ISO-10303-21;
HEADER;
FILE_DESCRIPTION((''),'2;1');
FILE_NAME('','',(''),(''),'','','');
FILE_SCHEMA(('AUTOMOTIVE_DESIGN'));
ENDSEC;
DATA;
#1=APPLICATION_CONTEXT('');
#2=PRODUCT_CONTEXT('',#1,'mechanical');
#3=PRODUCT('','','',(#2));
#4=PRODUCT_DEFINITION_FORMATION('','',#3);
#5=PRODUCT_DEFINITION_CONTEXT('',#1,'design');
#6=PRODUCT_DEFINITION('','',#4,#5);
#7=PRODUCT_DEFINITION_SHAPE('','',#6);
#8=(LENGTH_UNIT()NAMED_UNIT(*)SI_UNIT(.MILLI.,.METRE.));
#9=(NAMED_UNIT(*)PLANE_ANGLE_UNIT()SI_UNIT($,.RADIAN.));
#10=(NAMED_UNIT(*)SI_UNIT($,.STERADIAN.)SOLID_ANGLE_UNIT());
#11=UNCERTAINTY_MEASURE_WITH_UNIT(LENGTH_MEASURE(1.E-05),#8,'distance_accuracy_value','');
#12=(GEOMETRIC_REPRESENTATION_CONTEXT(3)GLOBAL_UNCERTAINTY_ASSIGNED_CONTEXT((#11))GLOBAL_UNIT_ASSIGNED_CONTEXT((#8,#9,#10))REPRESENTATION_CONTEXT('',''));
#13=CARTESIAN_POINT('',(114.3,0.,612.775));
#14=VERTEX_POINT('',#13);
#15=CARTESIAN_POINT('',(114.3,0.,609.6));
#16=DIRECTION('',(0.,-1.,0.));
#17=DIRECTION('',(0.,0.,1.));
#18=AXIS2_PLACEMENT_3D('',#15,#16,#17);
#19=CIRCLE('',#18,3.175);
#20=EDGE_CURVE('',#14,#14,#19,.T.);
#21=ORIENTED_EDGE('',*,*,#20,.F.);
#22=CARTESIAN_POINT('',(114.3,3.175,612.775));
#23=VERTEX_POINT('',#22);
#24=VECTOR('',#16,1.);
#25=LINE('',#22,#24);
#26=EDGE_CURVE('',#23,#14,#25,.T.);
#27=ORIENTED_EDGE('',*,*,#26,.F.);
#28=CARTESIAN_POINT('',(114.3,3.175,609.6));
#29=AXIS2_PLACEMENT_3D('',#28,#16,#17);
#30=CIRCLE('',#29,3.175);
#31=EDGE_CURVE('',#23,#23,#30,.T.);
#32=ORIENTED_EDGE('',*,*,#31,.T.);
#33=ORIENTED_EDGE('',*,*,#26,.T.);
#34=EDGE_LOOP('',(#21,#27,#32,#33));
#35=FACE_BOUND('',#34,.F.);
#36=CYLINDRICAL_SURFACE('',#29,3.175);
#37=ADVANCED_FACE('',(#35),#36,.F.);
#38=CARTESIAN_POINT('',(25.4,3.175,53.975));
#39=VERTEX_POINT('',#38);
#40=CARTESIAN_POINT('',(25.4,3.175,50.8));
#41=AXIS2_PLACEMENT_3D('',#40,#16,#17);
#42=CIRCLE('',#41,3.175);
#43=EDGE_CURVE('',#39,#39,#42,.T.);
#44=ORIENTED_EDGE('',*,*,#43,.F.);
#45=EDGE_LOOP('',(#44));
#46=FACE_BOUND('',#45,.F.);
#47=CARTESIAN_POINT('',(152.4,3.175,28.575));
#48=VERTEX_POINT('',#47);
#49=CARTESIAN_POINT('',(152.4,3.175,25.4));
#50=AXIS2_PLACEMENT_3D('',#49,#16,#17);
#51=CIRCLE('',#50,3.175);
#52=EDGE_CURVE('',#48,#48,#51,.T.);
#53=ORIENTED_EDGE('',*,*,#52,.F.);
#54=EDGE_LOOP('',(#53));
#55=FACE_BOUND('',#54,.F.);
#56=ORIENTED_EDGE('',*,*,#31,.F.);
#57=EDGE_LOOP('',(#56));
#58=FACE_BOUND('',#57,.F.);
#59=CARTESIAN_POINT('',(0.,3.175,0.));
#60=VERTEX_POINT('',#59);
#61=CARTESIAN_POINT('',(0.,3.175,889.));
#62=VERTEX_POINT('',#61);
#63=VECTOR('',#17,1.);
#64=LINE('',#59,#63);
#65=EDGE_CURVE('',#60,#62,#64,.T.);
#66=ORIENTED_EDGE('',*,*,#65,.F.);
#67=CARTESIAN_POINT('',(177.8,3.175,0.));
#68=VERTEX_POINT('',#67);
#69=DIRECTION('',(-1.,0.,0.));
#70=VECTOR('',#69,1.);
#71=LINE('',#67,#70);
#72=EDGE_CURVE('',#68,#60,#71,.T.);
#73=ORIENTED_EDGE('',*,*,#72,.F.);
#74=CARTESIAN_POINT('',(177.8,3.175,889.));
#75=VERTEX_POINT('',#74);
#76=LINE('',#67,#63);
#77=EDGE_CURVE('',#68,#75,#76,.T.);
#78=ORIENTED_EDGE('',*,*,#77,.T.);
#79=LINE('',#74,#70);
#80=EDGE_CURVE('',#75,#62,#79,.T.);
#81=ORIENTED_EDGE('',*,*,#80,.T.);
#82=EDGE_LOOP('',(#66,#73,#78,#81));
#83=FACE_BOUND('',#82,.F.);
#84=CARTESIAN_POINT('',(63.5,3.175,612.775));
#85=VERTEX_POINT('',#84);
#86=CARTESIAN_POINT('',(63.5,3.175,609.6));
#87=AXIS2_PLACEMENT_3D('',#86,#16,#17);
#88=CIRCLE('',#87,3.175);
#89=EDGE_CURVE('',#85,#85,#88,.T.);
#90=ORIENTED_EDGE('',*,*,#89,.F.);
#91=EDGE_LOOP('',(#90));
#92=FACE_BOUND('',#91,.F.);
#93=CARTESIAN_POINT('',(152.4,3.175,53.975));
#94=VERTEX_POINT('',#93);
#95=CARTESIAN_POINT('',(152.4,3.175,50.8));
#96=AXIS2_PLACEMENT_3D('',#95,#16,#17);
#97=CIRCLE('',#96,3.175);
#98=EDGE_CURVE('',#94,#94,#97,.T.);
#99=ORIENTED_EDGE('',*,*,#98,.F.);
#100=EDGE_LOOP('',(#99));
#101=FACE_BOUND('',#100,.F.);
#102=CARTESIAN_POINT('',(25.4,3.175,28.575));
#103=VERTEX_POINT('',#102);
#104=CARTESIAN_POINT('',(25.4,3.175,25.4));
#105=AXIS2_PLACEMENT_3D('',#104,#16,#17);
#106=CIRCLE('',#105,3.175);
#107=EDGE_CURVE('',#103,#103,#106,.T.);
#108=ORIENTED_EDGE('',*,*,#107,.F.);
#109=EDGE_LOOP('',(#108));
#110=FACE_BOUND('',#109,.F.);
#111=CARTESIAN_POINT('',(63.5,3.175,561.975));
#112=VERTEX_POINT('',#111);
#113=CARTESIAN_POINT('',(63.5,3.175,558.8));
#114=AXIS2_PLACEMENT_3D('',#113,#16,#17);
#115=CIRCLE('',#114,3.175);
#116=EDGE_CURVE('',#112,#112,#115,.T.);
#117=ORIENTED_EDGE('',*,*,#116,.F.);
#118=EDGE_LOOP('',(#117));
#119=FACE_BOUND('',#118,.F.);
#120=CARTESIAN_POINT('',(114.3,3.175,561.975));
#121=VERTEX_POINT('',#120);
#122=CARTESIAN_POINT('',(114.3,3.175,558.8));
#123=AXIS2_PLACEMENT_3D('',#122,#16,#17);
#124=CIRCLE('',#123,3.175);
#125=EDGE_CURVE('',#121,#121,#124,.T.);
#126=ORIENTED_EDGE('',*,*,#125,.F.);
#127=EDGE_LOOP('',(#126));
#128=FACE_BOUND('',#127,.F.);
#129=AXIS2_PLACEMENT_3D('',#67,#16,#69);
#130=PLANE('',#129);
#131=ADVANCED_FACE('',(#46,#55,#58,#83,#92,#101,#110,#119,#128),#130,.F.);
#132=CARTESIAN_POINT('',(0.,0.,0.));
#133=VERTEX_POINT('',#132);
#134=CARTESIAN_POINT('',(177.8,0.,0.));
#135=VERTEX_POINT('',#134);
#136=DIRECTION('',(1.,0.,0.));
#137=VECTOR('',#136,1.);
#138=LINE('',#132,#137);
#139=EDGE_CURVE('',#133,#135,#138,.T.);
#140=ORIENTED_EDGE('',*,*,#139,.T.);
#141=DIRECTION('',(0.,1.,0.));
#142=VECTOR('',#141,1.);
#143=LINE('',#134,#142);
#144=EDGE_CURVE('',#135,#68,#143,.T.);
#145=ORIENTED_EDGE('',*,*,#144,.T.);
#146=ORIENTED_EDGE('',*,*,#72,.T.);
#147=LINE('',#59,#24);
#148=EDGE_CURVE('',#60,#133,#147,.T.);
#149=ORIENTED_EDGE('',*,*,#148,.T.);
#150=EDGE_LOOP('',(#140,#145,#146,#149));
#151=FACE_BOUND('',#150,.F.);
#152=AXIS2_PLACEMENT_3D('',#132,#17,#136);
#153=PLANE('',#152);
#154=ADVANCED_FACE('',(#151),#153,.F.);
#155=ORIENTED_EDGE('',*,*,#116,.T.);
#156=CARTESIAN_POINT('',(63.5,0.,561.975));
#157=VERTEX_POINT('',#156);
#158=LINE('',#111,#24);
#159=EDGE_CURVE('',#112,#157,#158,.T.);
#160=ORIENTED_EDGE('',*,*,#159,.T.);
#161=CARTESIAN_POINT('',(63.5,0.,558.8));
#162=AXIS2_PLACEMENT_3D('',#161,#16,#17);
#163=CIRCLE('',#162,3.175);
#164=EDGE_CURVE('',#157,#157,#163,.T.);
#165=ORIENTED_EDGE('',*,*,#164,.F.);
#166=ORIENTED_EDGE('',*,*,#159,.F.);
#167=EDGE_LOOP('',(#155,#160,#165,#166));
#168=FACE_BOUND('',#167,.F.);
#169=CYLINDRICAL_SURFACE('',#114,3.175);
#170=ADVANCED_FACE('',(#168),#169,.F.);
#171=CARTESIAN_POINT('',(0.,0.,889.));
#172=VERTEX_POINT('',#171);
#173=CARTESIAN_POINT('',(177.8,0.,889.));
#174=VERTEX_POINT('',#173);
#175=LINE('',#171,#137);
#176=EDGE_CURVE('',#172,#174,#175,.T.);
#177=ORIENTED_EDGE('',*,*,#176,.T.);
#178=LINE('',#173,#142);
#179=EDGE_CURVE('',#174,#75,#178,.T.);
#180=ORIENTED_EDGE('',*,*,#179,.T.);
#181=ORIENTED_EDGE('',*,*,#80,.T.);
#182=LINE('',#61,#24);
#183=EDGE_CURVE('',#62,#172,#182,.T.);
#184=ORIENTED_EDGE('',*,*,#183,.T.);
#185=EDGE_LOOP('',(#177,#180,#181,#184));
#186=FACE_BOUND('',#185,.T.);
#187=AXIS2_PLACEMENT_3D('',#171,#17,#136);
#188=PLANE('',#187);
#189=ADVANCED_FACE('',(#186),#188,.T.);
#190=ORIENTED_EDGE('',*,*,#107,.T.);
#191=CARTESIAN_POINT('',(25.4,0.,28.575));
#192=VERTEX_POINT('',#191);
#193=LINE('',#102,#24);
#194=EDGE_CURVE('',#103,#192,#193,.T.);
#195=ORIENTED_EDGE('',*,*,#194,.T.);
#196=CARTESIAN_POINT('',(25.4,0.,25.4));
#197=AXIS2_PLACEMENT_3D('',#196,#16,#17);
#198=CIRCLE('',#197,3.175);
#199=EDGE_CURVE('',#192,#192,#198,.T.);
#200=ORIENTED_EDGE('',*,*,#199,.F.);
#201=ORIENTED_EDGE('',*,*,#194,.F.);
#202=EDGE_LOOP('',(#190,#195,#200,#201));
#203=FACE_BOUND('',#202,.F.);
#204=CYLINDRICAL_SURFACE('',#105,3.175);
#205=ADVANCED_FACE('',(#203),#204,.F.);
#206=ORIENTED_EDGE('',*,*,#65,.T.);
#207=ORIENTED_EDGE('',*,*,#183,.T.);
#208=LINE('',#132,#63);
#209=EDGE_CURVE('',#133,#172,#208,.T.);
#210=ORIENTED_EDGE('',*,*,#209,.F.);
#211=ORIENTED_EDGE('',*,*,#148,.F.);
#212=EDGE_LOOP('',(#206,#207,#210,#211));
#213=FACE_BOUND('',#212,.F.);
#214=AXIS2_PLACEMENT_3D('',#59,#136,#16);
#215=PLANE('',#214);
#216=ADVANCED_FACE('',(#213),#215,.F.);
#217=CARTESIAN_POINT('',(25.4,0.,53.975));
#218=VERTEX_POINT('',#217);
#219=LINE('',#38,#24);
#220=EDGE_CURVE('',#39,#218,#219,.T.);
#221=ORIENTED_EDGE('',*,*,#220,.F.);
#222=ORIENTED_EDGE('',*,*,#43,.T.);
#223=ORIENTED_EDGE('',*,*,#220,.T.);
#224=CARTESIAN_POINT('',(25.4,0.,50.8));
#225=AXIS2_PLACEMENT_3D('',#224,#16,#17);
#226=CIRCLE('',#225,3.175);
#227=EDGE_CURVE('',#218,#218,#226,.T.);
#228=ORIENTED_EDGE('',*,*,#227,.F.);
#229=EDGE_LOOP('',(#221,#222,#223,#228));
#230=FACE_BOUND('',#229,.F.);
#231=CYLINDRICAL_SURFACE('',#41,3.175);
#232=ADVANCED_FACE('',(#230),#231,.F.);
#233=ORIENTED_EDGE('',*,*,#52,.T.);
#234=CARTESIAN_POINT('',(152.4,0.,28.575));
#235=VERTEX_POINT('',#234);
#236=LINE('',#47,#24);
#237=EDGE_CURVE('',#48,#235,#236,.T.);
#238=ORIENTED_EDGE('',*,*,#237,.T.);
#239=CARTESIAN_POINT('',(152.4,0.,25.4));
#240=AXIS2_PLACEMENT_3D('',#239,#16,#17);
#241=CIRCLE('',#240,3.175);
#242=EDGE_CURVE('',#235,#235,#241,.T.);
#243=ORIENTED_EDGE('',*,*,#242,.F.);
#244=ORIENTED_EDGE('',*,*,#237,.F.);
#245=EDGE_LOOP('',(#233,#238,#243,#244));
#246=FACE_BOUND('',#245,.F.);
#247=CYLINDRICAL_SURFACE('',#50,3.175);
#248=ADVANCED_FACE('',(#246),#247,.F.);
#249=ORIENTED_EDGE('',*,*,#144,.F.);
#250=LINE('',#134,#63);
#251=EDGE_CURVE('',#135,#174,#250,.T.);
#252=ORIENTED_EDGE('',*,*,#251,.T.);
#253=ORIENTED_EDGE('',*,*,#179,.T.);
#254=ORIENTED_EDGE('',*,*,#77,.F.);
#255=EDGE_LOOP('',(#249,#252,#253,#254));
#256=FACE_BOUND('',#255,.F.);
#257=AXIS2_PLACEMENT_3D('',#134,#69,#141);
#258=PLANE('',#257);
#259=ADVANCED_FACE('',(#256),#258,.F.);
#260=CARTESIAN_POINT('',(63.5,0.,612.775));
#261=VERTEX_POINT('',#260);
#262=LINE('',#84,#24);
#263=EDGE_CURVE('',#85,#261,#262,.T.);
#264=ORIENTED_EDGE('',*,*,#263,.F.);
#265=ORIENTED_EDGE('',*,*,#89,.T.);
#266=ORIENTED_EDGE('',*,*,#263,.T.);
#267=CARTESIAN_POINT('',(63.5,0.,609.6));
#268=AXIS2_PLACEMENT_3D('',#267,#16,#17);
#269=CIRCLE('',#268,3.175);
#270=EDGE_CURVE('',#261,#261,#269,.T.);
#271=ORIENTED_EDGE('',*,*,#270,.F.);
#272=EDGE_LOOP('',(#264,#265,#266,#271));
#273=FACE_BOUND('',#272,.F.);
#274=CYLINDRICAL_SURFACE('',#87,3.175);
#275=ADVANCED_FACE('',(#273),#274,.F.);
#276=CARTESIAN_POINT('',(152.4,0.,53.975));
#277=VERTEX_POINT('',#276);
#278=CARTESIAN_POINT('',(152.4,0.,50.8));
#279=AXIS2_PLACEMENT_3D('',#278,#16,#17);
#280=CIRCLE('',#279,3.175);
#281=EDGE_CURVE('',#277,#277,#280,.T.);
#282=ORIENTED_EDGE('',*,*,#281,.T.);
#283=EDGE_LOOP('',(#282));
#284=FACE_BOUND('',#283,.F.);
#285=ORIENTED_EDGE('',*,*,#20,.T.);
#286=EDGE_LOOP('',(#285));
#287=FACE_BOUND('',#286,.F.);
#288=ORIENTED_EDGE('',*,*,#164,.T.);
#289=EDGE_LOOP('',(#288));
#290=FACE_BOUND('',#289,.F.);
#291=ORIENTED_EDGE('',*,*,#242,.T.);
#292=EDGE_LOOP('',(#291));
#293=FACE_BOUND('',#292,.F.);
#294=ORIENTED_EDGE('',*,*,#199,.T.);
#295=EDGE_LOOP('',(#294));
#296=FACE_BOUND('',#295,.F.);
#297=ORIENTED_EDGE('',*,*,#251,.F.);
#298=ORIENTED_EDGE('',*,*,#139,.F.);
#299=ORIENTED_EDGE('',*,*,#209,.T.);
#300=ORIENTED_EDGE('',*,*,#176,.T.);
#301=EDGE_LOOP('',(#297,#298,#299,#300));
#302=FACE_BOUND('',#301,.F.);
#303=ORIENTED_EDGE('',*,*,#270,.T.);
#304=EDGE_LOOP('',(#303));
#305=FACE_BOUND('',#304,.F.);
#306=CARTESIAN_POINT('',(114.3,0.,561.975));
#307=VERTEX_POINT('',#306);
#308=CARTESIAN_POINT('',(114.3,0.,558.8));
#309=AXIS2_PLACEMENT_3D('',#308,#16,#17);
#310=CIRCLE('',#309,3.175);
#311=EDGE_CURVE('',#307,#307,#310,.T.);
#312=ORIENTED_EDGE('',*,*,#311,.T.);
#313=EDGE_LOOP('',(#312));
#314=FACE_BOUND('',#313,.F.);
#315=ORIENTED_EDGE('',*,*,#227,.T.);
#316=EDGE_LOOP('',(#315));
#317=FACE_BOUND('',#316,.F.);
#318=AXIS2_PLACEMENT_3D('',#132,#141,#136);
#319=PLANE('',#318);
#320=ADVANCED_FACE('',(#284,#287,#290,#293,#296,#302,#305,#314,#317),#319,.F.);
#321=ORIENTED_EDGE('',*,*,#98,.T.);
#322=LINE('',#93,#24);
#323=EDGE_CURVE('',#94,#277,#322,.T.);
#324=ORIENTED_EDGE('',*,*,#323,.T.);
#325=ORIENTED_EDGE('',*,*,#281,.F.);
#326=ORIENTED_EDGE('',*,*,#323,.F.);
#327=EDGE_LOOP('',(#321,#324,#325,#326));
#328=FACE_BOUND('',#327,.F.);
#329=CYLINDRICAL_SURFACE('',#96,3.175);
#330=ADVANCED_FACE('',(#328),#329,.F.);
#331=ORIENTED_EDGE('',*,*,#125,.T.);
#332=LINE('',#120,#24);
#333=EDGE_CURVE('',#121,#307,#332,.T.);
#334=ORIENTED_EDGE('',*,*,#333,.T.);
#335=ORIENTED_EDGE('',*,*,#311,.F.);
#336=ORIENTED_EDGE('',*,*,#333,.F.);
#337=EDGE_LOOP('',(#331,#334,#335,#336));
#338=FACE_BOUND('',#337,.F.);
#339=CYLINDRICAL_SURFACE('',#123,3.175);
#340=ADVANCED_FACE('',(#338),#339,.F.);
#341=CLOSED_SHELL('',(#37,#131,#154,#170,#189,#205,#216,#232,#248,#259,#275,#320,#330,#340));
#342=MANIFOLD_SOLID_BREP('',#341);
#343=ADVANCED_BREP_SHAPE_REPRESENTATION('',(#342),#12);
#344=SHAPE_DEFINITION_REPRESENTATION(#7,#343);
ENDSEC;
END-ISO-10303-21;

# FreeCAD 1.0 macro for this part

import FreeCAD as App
import Part
import Sketcher
from FreeCAD import Vector
Q = App.Units.Quantity


def add_polygon(sketch, points):
    """Adds a closed chain of lines whose ends are joined by coincident constraints."""
    first, n = sketch.GeometryCount, len(points)
    for a, b in zip(points, points[1:] + points[:1]):
        sketch.addGeometry(Part.LineSegment(App.Vector(*a, 0), App.Vector(*b, 0)), False)
    for i in range(n):
        sketch.addConstraint(Sketcher.Constraint("Coincident", first + i, 2, first + (i + 1) % n, 1))

doc = App.newDocument("Part")
body = doc.addObject("PartDesign::Body", "Body")

# Sketch on XY plane
sketch1 = body.newObject("Sketcher::SketchObject", "Sketch")
sketch1.AttachmentSupport = (doc.getObject("XY_Plane"), [""])
sketch1.MapMode = "FlatFace"
add_polygon(sketch1, [(0, 3.2), (0, 0), (177.8, 0), (177.8, 3.2)])  # lines 0-3
sketch1.addConstraint([
    Sketcher.Constraint("Vertical", 0),
    Sketcher.Constraint("Horizontal", 1),
    Sketcher.Constraint("Vertical", 2),
    Sketcher.Constraint("Horizontal", 3),
    Sketcher.Constraint("Coincident", 0, 2, -1, 1),
    Sketcher.Constraint("DistanceX", 1, 1, 1, 2, Q("7 in")),
    Sketcher.Constraint("DistanceY", 0, 2, 0, 1, Q("0.125 in")),
])
pad1 = body.newObject("PartDesign::Pad", "Pad")
pad1.Profile = sketch1
pad1.Length = Q("35 in")

# Sketch on XZ plane
sketch2 = body.newObject("Sketcher::SketchObject", "Sketch001")
sketch2.AttachmentSupport = (doc.getObject("XZ_Plane"), [""])
sketch2.MapMode = "FlatFace"
sketch2.AttachmentOffset = App.Placement(Vector(0, 0, -0.125 * 25.4), App.Rotation())
sketch2.addGeometry([
    Part.Circle(Vector(63.5, 558.8, 0), Vector(0, 0, 1), 3.2),
    Part.Circle(Vector(63.5, 609.6, 0), Vector(0, 0, 1), 3.2),
    Part.Circle(Vector(114.3, 609.6, 0), Vector(0, 0, 1), 3.2),
    Part.Circle(Vector(114.3, 558.8, 0), Vector(0, 0, 1), 3.2),
], False)
sketch2.addConstraint([
    Sketcher.Constraint("Equal", 0, 1),
    Sketcher.Constraint("Equal", 1, 2),
    Sketcher.Constraint("Equal", 2, 3),
    Sketcher.Constraint("Horizontal", 1, 3, 2, 3),
    Sketcher.Constraint("Horizontal", 0, 3, 3, 3),
    Sketcher.Constraint("Vertical", 0, 3, 1, 3),
    Sketcher.Constraint("Vertical", 2, 3, 3, 3),
    Sketcher.Constraint("Diameter", 0, Q("0.25 in")),
    Sketcher.Constraint("DistanceY", -1, 1, 0, 3, Q("22 in")),
    Sketcher.Constraint("DistanceY", -1, 1, 1, 3, Q("24 in")),
    Sketcher.Constraint("DistanceX", 1, 3, 2, 3, Q("2 in")),
    Sketcher.Constraint("DistanceX", -1, 1, 0, 3, Q("2.5 in")),
])
doc.recompute()
hole = body.newObject("PartDesign::Hole", "Hole")
hole.Profile = sketch2
hole.ThreadType = "None"
hole.Diameter = Q("0.25 in")
hole.DepthType = "ThroughAll"
hole.Reversed = True

# Sketch on XZ plane
sketch3 = body.newObject("Sketcher::SketchObject", "Sketch002")
sketch3.AttachmentSupport = (doc.getObject("XZ_Plane"), [""])
sketch3.MapMode = "FlatFace"
sketch3.AttachmentOffset = App.Placement(Vector(0, 0, -0.125 * 25.4), App.Rotation())
sketch3.addGeometry([
    Part.Circle(Vector(25.4, 25.4, 0), Vector(0, 0, 1), 3.2),
    Part.Circle(Vector(25.4, 50.8, 0), Vector(0, 0, 1), 3.2),
    Part.Circle(Vector(152.4, 50.8, 0), Vector(0, 0, 1), 3.2),
    Part.Circle(Vector(152.4, 25.4, 0), Vector(0, 0, 1), 3.2),
], False)
sketch3.addConstraint([
    Sketcher.Constraint("Equal", 0, 1),
    Sketcher.Constraint("Equal", 1, 2),
    Sketcher.Constraint("Equal", 2, 3),
    Sketcher.Constraint("Horizontal", 1, 3, 2, 3),
    Sketcher.Constraint("Horizontal", 0, 3, 3, 3),
    Sketcher.Constraint("Vertical", 0, 3, 1, 3),
    Sketcher.Constraint("Vertical", 2, 3, 3, 3),
    Sketcher.Constraint("Diameter", 0, Q("0.25 in")),
    Sketcher.Constraint("DistanceX", -1, 1, 0, 3, Q("1 in")),
    Sketcher.Constraint("DistanceY", -1, 1, 0, 3, Q("1 in")),
    Sketcher.Constraint("DistanceY", -1, 1, 1, 3, Q("2 in")),
    Sketcher.Constraint("DistanceX", -1, 1, 2, 3, Q("6 in")),
])
doc.recompute()
hole2 = body.newObject("PartDesign::Hole", "Hole001")
hole2.Profile = sketch3
hole2.ThreadType = "None"
hole2.Diameter = Q("0.25 in")
hole2.DepthType = "ThroughAll"
hole2.Reversed = True

doc.recompute()
